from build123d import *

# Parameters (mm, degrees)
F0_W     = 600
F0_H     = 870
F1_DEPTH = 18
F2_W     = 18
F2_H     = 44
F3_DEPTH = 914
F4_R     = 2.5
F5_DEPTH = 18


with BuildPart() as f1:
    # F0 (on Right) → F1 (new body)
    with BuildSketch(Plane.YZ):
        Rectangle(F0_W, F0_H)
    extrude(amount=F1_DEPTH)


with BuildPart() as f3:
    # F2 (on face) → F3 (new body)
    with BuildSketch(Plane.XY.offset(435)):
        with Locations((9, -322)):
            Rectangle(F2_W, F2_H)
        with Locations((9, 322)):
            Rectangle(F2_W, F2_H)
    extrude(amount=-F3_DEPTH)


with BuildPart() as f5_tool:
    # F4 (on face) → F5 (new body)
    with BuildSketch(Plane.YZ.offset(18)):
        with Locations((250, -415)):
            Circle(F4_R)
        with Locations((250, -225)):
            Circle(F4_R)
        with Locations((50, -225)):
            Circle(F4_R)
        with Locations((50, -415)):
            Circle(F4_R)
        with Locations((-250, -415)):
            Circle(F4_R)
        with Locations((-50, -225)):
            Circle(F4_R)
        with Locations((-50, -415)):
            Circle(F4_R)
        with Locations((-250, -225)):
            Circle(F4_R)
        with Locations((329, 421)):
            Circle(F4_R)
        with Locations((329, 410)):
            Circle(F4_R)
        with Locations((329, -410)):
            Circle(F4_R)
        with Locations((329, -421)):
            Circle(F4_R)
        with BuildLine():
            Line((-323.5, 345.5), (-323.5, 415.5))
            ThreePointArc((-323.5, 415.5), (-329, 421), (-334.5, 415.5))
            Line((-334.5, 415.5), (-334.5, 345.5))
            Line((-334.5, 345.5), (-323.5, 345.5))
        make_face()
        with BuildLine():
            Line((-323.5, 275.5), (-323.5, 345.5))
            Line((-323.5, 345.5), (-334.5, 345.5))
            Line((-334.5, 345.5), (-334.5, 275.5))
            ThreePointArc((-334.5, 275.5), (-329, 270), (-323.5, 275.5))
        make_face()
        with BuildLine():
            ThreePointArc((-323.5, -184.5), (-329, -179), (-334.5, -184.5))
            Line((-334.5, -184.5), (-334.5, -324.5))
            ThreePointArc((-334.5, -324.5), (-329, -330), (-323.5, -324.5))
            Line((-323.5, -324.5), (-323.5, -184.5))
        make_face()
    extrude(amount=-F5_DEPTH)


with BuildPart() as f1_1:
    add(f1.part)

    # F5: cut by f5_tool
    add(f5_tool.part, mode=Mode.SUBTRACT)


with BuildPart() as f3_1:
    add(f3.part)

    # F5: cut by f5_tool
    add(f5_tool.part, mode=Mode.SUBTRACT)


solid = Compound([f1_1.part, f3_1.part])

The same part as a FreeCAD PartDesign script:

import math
import FreeCAD as App
import Part
import Sketcher

doc = App.newDocument("Part")
params = doc.addObject("Spreadsheet::Sheet", "Params")
for row, (alias, value) in enumerate([
    ("sketch1_width", "600 mm"),
    ("sketch1_height", "870 mm"),
    ("pad1_length", "18 mm"),
    ("sketch2_width", "18 mm"),
    ("sketch2_height", "44 mm"),
    ("pad2_length", "914 mm"),
    ("sketch3_diameter", "5 mm"),
    ("sketch3_radius", "5.5 mm"),
    ("sketch3_height", "140 mm"),
    ("pad3_length", "18 mm"),
], start=1):
    params.set(f"A{row}", alias)
    params.set(f"B{row}", "=" + value)
    params.setAlias(f"B{row}", alias)

body = doc.addObject("PartDesign::Body", "Body")

# Sketch on YZ plane
sketch1 = body.newObject("Sketcher::SketchObject", "Sketch")
sketch1.AttachmentSupport = (doc.getObject("YZ_Plane"), [""])
sketch1.MapMode = "FlatFace"
sketch1.addGeometry(Part.LineSegment(App.Vector(-300, 435, 0), App.Vector(-300, -435, 0)), False)
sketch1.addGeometry(Part.LineSegment(App.Vector(-300, -435, 0), App.Vector(300, -435, 0)), False)
sketch1.addGeometry(Part.LineSegment(App.Vector(300, -435, 0), App.Vector(300, 435, 0)), False)
sketch1.addGeometry(Part.LineSegment(App.Vector(300, 435, 0), App.Vector(-300, 435, 0)), False)
sketch1.addConstraint(Sketcher.Constraint("Coincident", 0, 2, 1, 1))
sketch1.addConstraint(Sketcher.Constraint("Coincident", 1, 2, 2, 1))
sketch1.addConstraint(Sketcher.Constraint("Coincident", 2, 2, 3, 1))
sketch1.addConstraint(Sketcher.Constraint("Coincident", 3, 2, 0, 1))
sketch1.addConstraint(Sketcher.Constraint("Vertical", 0))
sketch1.addConstraint(Sketcher.Constraint("Horizontal", 1))
sketch1.addConstraint(Sketcher.Constraint("Vertical", 2))
sketch1.addConstraint(Sketcher.Constraint("Horizontal", 3))
sketch1.addConstraint(Sketcher.Constraint("Symmetric", 0, 2, 2, 2, -1, 1))
sketch1.addConstraint(Sketcher.Constraint("DistanceX", 1, 1, 1, 2, 600.0))
sketch1.addConstraint(Sketcher.Constraint("DistanceY", 0, 2, 0, 1, 870.0))
sketch1.setExpression("Constraints[9]", "Params.sketch1_width")
sketch1.setExpression("Constraints[10]", "Params.sketch1_height")
pad1 = body.newObject("PartDesign::Pad", "Pad")
pad1.Profile = sketch1
pad1.setExpression("Length", "Params.pad1_length")
body2 = doc.addObject("PartDesign::Body", "Body001")
body2.AllowCompound = True

# Sketch on XY plane
sketch2 = body2.newObject("Sketcher::SketchObject", "Sketch001")
sketch2.AttachmentSupport = (doc.getObject("XY_Plane001"), [""])
sketch2.MapMode = "FlatFace"
sketch2.AttachmentOffset = App.Placement(App.Vector(0, 0, 435), App.Rotation())
sketch2.addGeometry(Part.LineSegment(App.Vector(0, -300, 0), App.Vector(0, -344, 0)), False)
sketch2.addGeometry(Part.LineSegment(App.Vector(0, -344, 0), App.Vector(18, -344, 0)), False)
sketch2.addGeometry(Part.LineSegment(App.Vector(18, -344, 0), App.Vector(18, -300, 0)), False)
sketch2.addGeometry(Part.LineSegment(App.Vector(18, -300, 0), App.Vector(0, -300, 0)), False)
sketch2.addGeometry(Part.LineSegment(App.Vector(0, 344, 0), App.Vector(0, 300, 0)), False)
sketch2.addGeometry(Part.LineSegment(App.Vector(0, 300, 0), App.Vector(18, 300, 0)), False)
sketch2.addGeometry(Part.LineSegment(App.Vector(18, 300, 0), App.Vector(18, 344, 0)), False)
sketch2.addGeometry(Part.LineSegment(App.Vector(18, 344, 0), App.Vector(0, 344, 0)), False)
sketch2.addConstraint(Sketcher.Constraint("Coincident", 0, 2, 1, 1))
sketch2.addConstraint(Sketcher.Constraint("Coincident", 1, 2, 2, 1))
sketch2.addConstraint(Sketcher.Constraint("Coincident", 2, 2, 3, 1))
sketch2.addConstraint(Sketcher.Constraint("Coincident", 3, 2, 0, 1))
sketch2.addConstraint(Sketcher.Constraint("Coincident", 4, 2, 5, 1))
sketch2.addConstraint(Sketcher.Constraint("Coincident", 5, 2, 6, 1))
sketch2.addConstraint(Sketcher.Constraint("Coincident", 6, 2, 7, 1))
sketch2.addConstraint(Sketcher.Constraint("Coincident", 7, 2, 4, 1))
sketch2.addConstraint(Sketcher.Constraint("Vertical", 0))
sketch2.addConstraint(Sketcher.Constraint("Horizontal", 1))
sketch2.addConstraint(Sketcher.Constraint("Vertical", 2))
sketch2.addConstraint(Sketcher.Constraint("Horizontal", 3))
sketch2.addConstraint(Sketcher.Constraint("Vertical", 4))
sketch2.addConstraint(Sketcher.Constraint("Horizontal", 5))
sketch2.addConstraint(Sketcher.Constraint("Vertical", 6))
sketch2.addConstraint(Sketcher.Constraint("Horizontal", 7))
sketch2.addConstraint(Sketcher.Constraint("Symmetric", 3, 2, 4, 2, -1, 1))
sketch2.addConstraint(Sketcher.Constraint("Symmetric", 1, 2, 6, 2, -1))
sketch2.addConstraint(Sketcher.Constraint("PointOnObject", 0, 2, -2))
sketch2.addConstraint(Sketcher.Constraint("DistanceX", 1, 1, 1, 2, 18.0))
sketch2.addConstraint(Sketcher.Constraint("DistanceY", 0, 2, 0, 1, 44.0))
sketch2.addConstraint(Sketcher.Constraint("DistanceY", 0, 2, -1, 1, 344.0))
sketch2.setExpression("Constraints[19]", "Params.sketch2_width")
sketch2.setExpression("Constraints[20]", "Params.sketch2_height")
pad2 = body2.newObject("PartDesign::Pad", "Pad001")
pad2.Profile = sketch2
pad2.setExpression("Length", "Params.pad2_length")
pad2.Reversed = True
body3 = doc.addObject("PartDesign::Body", "Body002")
body3.AllowCompound = True

# Sketch on YZ plane
sketch3 = body3.newObject("Sketcher::SketchObject", "Sketch002")
sketch3.AttachmentSupport = (doc.getObject("YZ_Plane002"), [""])
sketch3.MapMode = "FlatFace"
sketch3.AttachmentOffset = App.Placement(App.Vector(0, 0, 18), App.Rotation())
sketch3.addGeometry(Part.Circle(App.Vector(250, -415, 0), App.Vector(0, 0, 1), 2.5), False)
sketch3.addGeometry(Part.Circle(App.Vector(250, -225, 0), App.Vector(0, 0, 1), 2.5), False)
sketch3.addGeometry(Part.Circle(App.Vector(50, -225, 0), App.Vector(0, 0, 1), 2.5), False)
sketch3.addGeometry(Part.Circle(App.Vector(50, -415, 0), App.Vector(0, 0, 1), 2.5), False)
sketch3.addGeometry(Part.Circle(App.Vector(-250, -415, 0), App.Vector(0, 0, 1), 2.5), False)
sketch3.addGeometry(Part.Circle(App.Vector(-50, -225, 0), App.Vector(0, 0, 1), 2.5), False)
sketch3.addGeometry(Part.Circle(App.Vector(-50, -415, 0), App.Vector(0, 0, 1), 2.5), False)
sketch3.addGeometry(Part.Circle(App.Vector(-250, -225, 0), App.Vector(0, 0, 1), 2.5), False)
sketch3.addGeometry(Part.Circle(App.Vector(329, 421, 0), App.Vector(0, 0, 1), 2.5), False)
sketch3.addGeometry(Part.Circle(App.Vector(329, 410, 0), App.Vector(0, 0, 1), 2.5), False)
sketch3.addGeometry(Part.Circle(App.Vector(329, -410, 0), App.Vector(0, 0, 1), 2.5), False)
sketch3.addGeometry(Part.Circle(App.Vector(329, -421, 0), App.Vector(0, 0, 1), 2.5), False)
sketch3.addGeometry(Part.ArcOfCircle(Part.Circle(App.Vector(-329, 415.5, 0), App.Vector(0, 0, 1), 5.5), math.radians(0), math.radians(180)), False)
sketch3.addGeometry(Part.LineSegment(App.Vector(-334.5, 415.5, 0), App.Vector(-334.5, 275.5, 0)), False)
sketch3.addGeometry(Part.ArcOfCircle(Part.Circle(App.Vector(-329, 275.5, 0), App.Vector(0, 0, 1), 5.5), math.radians(180), math.radians(360)), False)
sketch3.addGeometry(Part.LineSegment(App.Vector(-323.5, 275.5, 0), App.Vector(-323.5, 415.5, 0)), False)
sketch3.addGeometry(Part.ArcOfCircle(Part.Circle(App.Vector(-329, -184.5, 0), App.Vector(0, 0, 1), 5.5), math.radians(0), math.radians(180)), False)
sketch3.addGeometry(Part.LineSegment(App.Vector(-334.5, -184.5, 0), App.Vector(-334.5, -324.5, 0)), False)
sketch3.addGeometry(Part.ArcOfCircle(Part.Circle(App.Vector(-329, -324.5, 0), App.Vector(0, 0, 1), 5.5), math.radians(180), math.radians(360)), False)
sketch3.addGeometry(Part.LineSegment(App.Vector(-323.5, -324.5, 0), App.Vector(-323.5, -184.5, 0)), False)
sketch3.addConstraint(Sketcher.Constraint("Tangent", 12, 2, 13, 1))
sketch3.addConstraint(Sketcher.Constraint("Tangent", 13, 2, 14, 1))
sketch3.addConstraint(Sketcher.Constraint("Tangent", 14, 2, 15, 1))
sketch3.addConstraint(Sketcher.Constraint("Tangent", 15, 2, 12, 1))
sketch3.addConstraint(Sketcher.Constraint("Tangent", 16, 2, 17, 1))
sketch3.addConstraint(Sketcher.Constraint("Tangent", 17, 2, 18, 1))
sketch3.addConstraint(Sketcher.Constraint("Tangent", 18, 2, 19, 1))
sketch3.addConstraint(Sketcher.Constraint("Tangent", 19, 2, 16, 1))
sketch3.addConstraint(Sketcher.Constraint("Vertical", 13))
sketch3.addConstraint(Sketcher.Constraint("Vertical", 15))
sketch3.addConstraint(Sketcher.Constraint("Vertical", 17))
sketch3.addConstraint(Sketcher.Constraint("Vertical", 19))
sketch3.addConstraint(Sketcher.Constraint("Equal", 0, 1))
sketch3.addConstraint(Sketcher.Constraint("Equal", 1, 2))
sketch3.addConstraint(Sketcher.Constraint("Equal", 2, 3))
sketch3.addConstraint(Sketcher.Constraint("Equal", 3, 4))
sketch3.addConstraint(Sketcher.Constraint("Equal", 4, 5))
sketch3.addConstraint(Sketcher.Constraint("Equal", 5, 6))
sketch3.addConstraint(Sketcher.Constraint("Equal", 6, 7))
sketch3.addConstraint(Sketcher.Constraint("Equal", 7, 8))
sketch3.addConstraint(Sketcher.Constraint("Equal", 8, 9))
sketch3.addConstraint(Sketcher.Constraint("Equal", 9, 10))
sketch3.addConstraint(Sketcher.Constraint("Equal", 10, 11))
sketch3.addConstraint(Sketcher.Constraint("Equal", 14, 16))
sketch3.addConstraint(Sketcher.Constraint("Symmetric", 0, 3, 4, 3, -2))
sketch3.addConstraint(Sketcher.Constraint("Symmetric", 2, 3, 5, 3, -2))
sketch3.addConstraint(Sketcher.Constraint("Symmetric", 3, 3, 6, 3, -2))
sketch3.addConstraint(Sketcher.Constraint("Symmetric", 1, 3, 7, 3, -2))
sketch3.addConstraint(Sketcher.Constraint("Symmetric", 9, 3, 10, 3, -1))
sketch3.addConstraint(Sketcher.Constraint("Symmetric", 8, 3, 11, 3, -1))
sketch3.addConstraint(Sketcher.Constraint("Horizontal", 1, 3, 2, 3))
sketch3.addConstraint(Sketcher.Constraint("Horizontal", 0, 3, 3, 3))
sketch3.addConstraint(Sketcher.Constraint("Vertical", 0, 3, 1, 3))
sketch3.addConstraint(Sketcher.Constraint("Vertical", 2, 3, 3, 3))
sketch3.addConstraint(Sketcher.Constraint("Vertical", 8, 3, 9, 3))
sketch3.addConstraint(Sketcher.Constraint("Vertical", 14, 3, 16, 3))
sketch3.addConstraint(Sketcher.Constraint("Equal", 15, 17))
sketch3.addConstraint(Sketcher.Constraint("Diameter", 0, 5.0))
sketch3.addConstraint(Sketcher.Constraint("Radius", 12, 5.5))
sketch3.addConstraint(Sketcher.Constraint("DistanceY", 13, 2, 13, 1, 140.0))
sketch3.addConstraint(Sketcher.Constraint("DistanceX", -1, 1, 0, 3, 250.0))
sketch3.addConstraint(Sketcher.Constraint("DistanceY", 0, 3, -1, 1, 415.0))
sketch3.addConstraint(Sketcher.Constraint("DistanceY", 1, 3, -1, 1, 225.0))
sketch3.addConstraint(Sketcher.Constraint("DistanceX", -1, 1, 2, 3, 50.0))
sketch3.addConstraint(Sketcher.Constraint("DistanceX", -1, 1, 8, 3, 329.0))
sketch3.addConstraint(Sketcher.Constraint("DistanceY", -1, 1, 8, 3, 421.0))
sketch3.addConstraint(Sketcher.Constraint("DistanceY", -1, 1, 9, 3, 410.0))
sketch3.addConstraint(Sketcher.Constraint("DistanceX", 12, 3, -1, 1, 329.0))
sketch3.addConstraint(Sketcher.Constraint("DistanceY", 16, 3, 12, 2, 600.0))
sketch3.addConstraint(Sketcher.Constraint("DistanceY", -1, 1, 12, 3, 415.5))
sketch3.setExpression("Constraints[37]", "Params.sketch3_diameter")
sketch3.setExpression("Constraints[38]", "Params.sketch3_radius")
sketch3.setExpression("Constraints[39]", "Params.sketch3_height")
pad3 = body3.newObject("PartDesign::Pad", "Pad002")
pad3.Profile = sketch3
pad3.setExpression("Length", "Params.pad3_length")
pad3.Reversed = True
doc.recompute()

body4 = doc.addObject("PartDesign::Body", "Body003")
body4.BaseFeature = body3
boolean = body.newObject("PartDesign::Boolean", "Boolean")
boolean.Type = "Cut"
boolean.addObjects([body4])
doc.recompute()
body2.AllowCompound = True
doc.recompute()

boolean2 = body2.newObject("PartDesign::Boolean", "Boolean001")
boolean2.Type = "Cut"
boolean2.addObjects([body3])

doc.recompute()
